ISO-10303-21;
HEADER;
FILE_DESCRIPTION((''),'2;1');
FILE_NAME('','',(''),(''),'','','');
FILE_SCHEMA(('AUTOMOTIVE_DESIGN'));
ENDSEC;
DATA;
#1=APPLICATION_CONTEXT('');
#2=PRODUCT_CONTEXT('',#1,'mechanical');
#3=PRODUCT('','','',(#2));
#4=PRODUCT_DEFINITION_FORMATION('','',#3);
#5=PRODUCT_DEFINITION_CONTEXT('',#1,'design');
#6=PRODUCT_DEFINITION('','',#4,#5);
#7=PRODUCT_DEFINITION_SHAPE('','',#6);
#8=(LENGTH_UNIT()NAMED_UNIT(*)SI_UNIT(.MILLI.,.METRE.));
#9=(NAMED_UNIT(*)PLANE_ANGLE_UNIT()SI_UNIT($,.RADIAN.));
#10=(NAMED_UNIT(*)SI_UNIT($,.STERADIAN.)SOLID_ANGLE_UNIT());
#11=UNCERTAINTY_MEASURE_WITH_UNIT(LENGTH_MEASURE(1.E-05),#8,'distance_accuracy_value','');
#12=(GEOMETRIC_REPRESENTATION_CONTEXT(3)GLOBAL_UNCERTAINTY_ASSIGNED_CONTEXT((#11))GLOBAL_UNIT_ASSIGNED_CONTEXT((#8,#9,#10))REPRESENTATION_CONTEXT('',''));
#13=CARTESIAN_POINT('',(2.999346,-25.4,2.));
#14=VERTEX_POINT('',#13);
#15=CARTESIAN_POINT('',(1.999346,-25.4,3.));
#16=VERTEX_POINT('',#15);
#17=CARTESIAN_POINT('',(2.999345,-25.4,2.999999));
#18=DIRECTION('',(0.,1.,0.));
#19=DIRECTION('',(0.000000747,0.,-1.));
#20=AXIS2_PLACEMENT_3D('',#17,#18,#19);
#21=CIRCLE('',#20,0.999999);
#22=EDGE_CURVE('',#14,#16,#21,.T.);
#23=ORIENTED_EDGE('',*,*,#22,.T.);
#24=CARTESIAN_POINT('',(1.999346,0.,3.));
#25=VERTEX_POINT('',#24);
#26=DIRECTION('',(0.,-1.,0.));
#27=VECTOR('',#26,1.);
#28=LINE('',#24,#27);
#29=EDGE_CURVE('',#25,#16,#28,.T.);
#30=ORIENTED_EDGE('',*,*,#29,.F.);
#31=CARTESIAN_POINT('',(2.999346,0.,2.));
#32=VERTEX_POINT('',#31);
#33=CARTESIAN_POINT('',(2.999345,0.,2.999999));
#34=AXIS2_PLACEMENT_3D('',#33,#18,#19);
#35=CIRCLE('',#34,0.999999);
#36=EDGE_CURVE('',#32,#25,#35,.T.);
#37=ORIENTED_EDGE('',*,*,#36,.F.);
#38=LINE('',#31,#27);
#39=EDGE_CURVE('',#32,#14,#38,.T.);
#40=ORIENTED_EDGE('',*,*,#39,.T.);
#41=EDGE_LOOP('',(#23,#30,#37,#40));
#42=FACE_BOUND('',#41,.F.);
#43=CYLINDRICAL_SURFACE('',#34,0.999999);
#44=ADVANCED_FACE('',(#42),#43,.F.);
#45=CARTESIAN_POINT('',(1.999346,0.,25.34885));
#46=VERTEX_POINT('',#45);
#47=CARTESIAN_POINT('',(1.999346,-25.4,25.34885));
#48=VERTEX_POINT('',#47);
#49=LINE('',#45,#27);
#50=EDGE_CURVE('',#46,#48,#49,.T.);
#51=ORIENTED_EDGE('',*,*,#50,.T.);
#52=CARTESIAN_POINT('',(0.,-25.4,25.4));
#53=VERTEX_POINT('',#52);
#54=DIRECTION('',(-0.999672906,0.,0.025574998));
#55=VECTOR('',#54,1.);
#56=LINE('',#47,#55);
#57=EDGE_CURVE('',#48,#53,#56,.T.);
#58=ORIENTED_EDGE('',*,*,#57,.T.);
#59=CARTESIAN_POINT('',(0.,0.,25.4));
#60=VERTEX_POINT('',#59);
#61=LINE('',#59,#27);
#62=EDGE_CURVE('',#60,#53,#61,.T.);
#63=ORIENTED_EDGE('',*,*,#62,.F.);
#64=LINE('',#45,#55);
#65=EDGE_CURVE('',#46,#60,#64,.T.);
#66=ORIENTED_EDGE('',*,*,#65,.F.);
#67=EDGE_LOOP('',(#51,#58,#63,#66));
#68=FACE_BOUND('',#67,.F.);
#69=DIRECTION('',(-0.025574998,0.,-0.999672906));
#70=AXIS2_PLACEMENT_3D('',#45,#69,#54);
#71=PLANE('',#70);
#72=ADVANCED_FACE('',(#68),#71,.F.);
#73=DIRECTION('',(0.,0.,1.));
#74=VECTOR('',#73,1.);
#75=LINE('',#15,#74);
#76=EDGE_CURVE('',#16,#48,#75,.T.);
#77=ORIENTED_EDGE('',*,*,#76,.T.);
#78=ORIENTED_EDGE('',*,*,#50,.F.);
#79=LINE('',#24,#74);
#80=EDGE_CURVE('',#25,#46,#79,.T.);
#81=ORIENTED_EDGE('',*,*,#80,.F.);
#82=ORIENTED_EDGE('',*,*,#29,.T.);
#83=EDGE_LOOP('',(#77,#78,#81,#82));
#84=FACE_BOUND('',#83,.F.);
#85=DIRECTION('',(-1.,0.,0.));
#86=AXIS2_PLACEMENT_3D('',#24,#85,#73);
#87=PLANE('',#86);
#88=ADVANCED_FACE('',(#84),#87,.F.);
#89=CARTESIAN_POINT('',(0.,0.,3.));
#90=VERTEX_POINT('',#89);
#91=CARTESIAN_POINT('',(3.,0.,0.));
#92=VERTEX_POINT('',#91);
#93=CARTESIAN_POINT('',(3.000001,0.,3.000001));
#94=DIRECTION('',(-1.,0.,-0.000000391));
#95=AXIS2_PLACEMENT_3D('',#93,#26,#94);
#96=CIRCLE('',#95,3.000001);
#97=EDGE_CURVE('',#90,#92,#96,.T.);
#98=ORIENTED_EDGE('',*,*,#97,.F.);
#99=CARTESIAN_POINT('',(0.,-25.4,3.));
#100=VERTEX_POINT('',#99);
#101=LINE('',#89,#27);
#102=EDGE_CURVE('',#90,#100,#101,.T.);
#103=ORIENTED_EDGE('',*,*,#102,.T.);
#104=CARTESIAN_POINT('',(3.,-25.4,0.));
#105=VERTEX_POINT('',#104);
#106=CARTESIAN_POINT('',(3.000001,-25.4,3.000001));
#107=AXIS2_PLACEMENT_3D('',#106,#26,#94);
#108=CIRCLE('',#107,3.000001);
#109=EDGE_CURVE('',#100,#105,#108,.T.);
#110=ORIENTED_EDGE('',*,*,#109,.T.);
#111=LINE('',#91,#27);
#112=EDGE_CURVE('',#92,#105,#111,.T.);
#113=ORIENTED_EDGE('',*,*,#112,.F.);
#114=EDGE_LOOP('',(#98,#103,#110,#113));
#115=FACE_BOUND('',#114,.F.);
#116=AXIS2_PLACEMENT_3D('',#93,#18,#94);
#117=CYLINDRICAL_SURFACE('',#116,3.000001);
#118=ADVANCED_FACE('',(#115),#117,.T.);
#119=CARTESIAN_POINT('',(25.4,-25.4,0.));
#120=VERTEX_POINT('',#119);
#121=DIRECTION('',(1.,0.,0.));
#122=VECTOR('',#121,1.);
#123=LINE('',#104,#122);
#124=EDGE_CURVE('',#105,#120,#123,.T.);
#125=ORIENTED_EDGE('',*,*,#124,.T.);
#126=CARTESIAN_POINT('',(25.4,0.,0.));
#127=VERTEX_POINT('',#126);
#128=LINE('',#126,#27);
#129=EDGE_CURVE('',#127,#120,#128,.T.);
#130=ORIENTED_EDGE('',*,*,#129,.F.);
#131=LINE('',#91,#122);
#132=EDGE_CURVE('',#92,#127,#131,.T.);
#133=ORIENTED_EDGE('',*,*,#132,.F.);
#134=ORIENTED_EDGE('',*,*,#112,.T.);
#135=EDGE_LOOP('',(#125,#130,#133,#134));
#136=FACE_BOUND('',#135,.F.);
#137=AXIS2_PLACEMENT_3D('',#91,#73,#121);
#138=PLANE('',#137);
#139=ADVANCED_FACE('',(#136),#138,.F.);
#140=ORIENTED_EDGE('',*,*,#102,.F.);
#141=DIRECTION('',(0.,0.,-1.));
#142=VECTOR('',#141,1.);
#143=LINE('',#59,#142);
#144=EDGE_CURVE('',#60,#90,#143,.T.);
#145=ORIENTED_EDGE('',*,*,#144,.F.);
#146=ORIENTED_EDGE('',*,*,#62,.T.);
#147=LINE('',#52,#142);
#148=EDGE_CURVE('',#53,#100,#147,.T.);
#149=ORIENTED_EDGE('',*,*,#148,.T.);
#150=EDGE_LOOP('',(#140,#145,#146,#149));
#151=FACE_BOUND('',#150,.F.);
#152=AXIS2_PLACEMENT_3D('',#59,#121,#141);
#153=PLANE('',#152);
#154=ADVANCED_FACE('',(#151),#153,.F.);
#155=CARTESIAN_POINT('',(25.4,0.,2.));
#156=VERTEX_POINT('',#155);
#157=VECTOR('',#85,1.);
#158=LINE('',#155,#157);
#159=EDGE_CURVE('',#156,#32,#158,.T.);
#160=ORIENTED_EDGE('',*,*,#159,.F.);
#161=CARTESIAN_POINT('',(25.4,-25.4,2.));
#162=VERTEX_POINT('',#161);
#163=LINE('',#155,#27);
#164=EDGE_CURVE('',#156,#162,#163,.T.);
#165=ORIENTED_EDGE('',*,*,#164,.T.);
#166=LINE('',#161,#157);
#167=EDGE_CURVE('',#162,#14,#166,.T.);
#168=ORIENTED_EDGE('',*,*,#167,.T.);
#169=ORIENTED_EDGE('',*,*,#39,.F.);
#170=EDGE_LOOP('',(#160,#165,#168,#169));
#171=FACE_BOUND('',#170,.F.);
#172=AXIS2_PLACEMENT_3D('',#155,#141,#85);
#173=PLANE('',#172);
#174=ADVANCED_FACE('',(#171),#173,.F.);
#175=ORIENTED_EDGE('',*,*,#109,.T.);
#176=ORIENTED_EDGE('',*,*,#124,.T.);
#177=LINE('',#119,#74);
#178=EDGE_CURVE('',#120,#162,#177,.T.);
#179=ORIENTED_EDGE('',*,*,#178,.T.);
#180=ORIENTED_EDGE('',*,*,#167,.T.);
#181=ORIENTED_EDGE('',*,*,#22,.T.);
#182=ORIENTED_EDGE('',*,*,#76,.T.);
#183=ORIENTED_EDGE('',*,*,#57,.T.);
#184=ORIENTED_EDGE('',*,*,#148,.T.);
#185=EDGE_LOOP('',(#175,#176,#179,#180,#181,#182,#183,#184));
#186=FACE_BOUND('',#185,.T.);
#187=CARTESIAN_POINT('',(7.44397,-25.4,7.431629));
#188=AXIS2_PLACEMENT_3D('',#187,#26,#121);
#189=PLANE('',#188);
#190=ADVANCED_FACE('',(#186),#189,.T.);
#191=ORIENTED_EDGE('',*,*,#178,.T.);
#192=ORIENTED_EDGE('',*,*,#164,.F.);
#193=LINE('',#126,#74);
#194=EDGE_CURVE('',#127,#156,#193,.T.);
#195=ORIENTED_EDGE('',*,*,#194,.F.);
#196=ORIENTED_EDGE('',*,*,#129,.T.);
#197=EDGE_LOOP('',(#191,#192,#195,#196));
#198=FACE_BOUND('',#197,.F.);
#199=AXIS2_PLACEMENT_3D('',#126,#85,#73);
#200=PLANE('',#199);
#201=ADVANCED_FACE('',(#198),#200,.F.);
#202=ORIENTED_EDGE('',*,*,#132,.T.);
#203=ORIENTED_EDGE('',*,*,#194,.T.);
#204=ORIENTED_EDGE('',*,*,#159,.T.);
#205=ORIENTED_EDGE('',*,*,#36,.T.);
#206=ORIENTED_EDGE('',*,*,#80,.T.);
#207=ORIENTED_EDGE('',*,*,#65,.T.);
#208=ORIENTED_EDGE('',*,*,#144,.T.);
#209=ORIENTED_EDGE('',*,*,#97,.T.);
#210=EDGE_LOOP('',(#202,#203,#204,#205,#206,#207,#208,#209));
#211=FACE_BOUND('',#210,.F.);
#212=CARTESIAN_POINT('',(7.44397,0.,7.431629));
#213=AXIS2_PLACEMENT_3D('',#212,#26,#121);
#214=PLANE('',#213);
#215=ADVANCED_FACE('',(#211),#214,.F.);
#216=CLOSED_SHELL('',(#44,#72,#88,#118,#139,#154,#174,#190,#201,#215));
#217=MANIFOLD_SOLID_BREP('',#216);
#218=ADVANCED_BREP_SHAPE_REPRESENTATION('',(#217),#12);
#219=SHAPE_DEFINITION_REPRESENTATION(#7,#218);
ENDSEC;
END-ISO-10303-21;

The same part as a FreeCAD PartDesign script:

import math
import FreeCAD as App
import Part
import Sketcher
from FreeCAD import Vector

doc = App.newDocument("Part")
params = doc.addObject("Spreadsheet::Sheet", "Params")
for row, (alias, value) in enumerate([
    ("sketch1_radius", "3.000001 mm"),
    ("sketch1_radius2", "0.999999 mm"),
    ("sketch1_length", "2 mm"),
    ("sketch1_width", "22.4 mm"),
    ("pad1_length", "25.4 mm"),
], start=1):
    params.set(f"A{row}", alias)
    params.set(f"B{row}", "=" + value)
    params.setAlias(f"B{row}", alias)

body = doc.addObject("PartDesign::Body", "Body")

sketch1 = body.newObject("Sketcher::SketchObject", "Sketch")
sketch1.AttachmentSupport = (doc.getObject("XZ_Plane"), [""])
sketch1.MapMode = "FlatFace"
sketch1.addGeometry([
    Part.LineSegment(Vector(0, 25.4, 0), Vector(0, 3, 0)),
    Part.ArcOfCircle(Part.Circle(Vector(3, 3, 0), Vector(0, 0, 1), 3), math.radians(-180), math.radians(-90)),
    Part.LineSegment(Vector(3, 0, 0), Vector(25.4, 0, 0)),
    Part.LineSegment(Vector(25.4, 0, 0), Vector(25.4, 2, 0)),
    Part.LineSegment(Vector(25.4, 2, 0), Vector(3, 2, 0)),
    Part.ArcOfCircle(Part.Circle(Vector(3, 3, 0), Vector(0, 0, 1), 1), math.radians(180), math.radians(270)),
    Part.LineSegment(Vector(2, 3, 0), Vector(2, 25.3, 0)),
    Part.LineSegment(Vector(2, 25.3, 0), Vector(0, 25.4, 0)),
], False)
sketch1.addConstraint([
    Sketcher.Constraint("Tangent", 0, 2, 1, 1),
    Sketcher.Constraint("Tangent", 1, 2, 2, 1),
    Sketcher.Constraint("Coincident", 2, 2, 3, 1),
    Sketcher.Constraint("Coincident", 3, 2, 4, 1),
    Sketcher.Constraint("Tangent", 4, 2, 5, 2),
    Sketcher.Constraint("Tangent", 5, 1, 6, 1),
    Sketcher.Constraint("Coincident", 6, 2, 7, 1),
    Sketcher.Constraint("Coincident", 7, 2, 0, 1),
    Sketcher.Constraint("Vertical", 0),
    Sketcher.Constraint("Horizontal", 2),
    Sketcher.Constraint("Vertical", 3),
    Sketcher.Constraint("Horizontal", 4),
    Sketcher.Constraint("Vertical", 6),
    Sketcher.Constraint("PointOnObject", 0, 2, -2),
    Sketcher.Constraint("PointOnObject", 1, 2, -1),
    Sketcher.Constraint("Horizontal", 1, 3, 5, 3),
    Sketcher.Constraint("Equal", 2, 0),
    Sketcher.Constraint("Radius", 1, 3.000001),
    Sketcher.Constraint("Radius", 5, 0.999999),
    Sketcher.Constraint("Distance", 7, 2.0),
    Sketcher.Constraint("DistanceX", 2, 1, 2, 2, 22.4),
    Sketcher.Constraint("DistanceY", 6, 1, 6, 2, 22.34885),
])
sketch1.setExpression("Constraints[17]", "Params.sketch1_radius")
sketch1.setExpression("Constraints[18]", "Params.sketch1_radius2")
sketch1.setExpression("Constraints[19]", "Params.sketch1_length")
sketch1.setExpression("Constraints[20]", "Params.sketch1_width")
pad1 = body.newObject("PartDesign::Pad", "Pad")
pad1.Profile = sketch1
pad1.setExpression("Length", "Params.pad1_length")

doc.recompute()
